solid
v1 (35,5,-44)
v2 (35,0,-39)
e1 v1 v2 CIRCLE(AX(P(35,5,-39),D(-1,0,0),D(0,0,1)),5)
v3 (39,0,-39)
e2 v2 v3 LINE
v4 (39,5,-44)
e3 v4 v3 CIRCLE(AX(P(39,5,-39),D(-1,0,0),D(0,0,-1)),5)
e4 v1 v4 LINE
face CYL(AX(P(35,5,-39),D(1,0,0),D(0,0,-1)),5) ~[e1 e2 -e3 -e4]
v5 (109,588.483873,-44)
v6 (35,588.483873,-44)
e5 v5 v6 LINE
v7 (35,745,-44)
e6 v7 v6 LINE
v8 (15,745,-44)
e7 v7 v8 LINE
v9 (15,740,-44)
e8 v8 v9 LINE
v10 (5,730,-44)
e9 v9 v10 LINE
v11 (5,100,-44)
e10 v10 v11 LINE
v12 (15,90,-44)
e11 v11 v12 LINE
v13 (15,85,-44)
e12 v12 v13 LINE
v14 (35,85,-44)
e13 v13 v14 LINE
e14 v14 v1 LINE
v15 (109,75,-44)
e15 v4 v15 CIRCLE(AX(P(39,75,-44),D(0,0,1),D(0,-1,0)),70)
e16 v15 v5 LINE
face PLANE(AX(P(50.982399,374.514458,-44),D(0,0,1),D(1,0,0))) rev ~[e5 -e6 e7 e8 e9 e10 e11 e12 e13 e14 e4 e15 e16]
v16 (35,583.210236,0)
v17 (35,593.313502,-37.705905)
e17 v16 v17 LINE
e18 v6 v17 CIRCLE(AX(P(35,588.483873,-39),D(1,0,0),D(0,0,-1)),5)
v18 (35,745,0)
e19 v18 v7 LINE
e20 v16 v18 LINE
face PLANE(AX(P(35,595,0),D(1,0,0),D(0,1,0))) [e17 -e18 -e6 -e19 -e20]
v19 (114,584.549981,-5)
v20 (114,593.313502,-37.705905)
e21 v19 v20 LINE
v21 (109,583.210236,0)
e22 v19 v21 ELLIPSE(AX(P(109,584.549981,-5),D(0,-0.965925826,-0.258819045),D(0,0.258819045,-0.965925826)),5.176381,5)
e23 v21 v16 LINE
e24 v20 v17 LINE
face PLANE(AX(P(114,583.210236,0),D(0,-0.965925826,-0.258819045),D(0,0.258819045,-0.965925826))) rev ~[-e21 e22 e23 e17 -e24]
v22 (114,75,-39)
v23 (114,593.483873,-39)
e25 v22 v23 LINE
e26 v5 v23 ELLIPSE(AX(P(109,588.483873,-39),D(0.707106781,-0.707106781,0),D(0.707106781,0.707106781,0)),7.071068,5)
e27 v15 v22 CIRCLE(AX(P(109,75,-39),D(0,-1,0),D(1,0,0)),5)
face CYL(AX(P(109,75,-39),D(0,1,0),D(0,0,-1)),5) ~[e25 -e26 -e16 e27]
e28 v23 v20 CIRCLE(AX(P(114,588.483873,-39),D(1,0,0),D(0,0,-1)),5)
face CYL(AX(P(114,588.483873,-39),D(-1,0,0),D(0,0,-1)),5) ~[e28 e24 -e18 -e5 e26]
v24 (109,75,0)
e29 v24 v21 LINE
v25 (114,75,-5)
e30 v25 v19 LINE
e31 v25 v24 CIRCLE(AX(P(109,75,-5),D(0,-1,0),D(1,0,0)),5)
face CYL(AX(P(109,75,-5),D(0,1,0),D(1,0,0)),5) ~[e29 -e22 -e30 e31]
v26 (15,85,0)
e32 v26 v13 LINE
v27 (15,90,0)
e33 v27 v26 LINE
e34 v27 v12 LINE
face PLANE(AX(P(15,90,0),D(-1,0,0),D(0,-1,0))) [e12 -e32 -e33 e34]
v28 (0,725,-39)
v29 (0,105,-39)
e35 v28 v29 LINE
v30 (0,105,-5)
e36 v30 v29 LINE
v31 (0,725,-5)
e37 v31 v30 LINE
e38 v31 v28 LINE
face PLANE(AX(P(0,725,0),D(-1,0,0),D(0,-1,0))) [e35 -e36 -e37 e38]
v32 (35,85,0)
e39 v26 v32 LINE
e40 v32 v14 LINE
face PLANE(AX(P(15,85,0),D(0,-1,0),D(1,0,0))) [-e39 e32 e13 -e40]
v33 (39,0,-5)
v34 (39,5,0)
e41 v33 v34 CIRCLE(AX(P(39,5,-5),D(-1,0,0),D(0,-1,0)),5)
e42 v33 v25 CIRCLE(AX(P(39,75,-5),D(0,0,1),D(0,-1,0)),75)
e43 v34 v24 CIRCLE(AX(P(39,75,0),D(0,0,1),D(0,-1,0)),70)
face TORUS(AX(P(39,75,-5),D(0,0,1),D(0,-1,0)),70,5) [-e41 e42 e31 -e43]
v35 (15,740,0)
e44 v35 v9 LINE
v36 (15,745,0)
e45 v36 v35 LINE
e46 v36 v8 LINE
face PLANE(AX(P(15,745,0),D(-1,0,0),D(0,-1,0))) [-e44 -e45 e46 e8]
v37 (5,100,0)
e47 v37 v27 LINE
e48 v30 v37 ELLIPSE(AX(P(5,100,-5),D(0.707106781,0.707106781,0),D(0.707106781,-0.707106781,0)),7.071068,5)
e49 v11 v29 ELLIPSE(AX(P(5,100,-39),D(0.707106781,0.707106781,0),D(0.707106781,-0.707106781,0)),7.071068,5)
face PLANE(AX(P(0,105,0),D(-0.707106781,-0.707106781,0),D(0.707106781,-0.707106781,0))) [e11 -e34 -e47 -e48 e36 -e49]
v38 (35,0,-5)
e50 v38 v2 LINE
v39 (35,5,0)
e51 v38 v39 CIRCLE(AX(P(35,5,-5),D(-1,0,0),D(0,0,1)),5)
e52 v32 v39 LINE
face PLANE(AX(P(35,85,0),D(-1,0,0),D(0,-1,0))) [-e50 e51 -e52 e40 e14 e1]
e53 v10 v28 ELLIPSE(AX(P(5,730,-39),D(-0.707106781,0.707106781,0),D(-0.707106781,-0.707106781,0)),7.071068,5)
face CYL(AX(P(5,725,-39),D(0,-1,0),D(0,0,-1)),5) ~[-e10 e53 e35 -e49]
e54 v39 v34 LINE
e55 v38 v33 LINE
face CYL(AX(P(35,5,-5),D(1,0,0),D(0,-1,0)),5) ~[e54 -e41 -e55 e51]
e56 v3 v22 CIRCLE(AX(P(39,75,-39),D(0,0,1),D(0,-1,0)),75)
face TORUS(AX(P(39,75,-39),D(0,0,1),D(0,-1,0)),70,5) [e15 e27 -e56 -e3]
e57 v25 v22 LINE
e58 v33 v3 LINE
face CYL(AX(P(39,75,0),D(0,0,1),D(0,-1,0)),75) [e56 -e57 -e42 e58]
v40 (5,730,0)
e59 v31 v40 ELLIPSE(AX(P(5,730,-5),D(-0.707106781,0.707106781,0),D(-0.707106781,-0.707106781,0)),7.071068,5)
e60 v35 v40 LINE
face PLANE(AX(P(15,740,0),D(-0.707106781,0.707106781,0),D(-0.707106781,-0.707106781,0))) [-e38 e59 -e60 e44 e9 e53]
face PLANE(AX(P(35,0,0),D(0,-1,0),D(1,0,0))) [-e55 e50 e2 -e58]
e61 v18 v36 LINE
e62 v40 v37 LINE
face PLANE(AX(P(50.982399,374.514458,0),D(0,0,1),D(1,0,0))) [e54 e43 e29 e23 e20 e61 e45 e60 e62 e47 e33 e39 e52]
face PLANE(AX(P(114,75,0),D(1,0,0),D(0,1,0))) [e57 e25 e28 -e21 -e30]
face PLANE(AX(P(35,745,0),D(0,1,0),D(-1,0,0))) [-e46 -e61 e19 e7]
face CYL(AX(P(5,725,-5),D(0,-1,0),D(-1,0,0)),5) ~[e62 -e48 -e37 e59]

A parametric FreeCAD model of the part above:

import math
import FreeCAD as App
import Part
import Sketcher
from FreeCAD import Vector
Q = App.Units.Quantity


def edges_at(feature, points):
    """Names of the edges that pass closest to the given points."""
    edges = feature.Shape.Edges
    near = lambda p: min(range(len(edges)), key=lambda i: edges[i].distToShape(Part.Vertex(*p))[0])
    return sorted({f"Edge{near(p) + 1}" for p in points})

doc = App.newDocument("Part")
params = doc.addObject("Spreadsheet::Sheet", "Params")
for row, (alias, value) in enumerate([
    ("sketch1_radius", "75 mm"),
    ("sketch1_width", "4 mm"),
    ("sketch1_width2", "20 mm"),
    ("sketch1_height", "85 mm"),
    ("sketch1_height2", "520 mm"),
    ("pad1_length", "44 mm"),
    ("sketch2_height", "44 mm"),
    ("pocket1_length", "79 mm"),
    ("fillet_radius", "5 mm"),
], start=1):
    params.set(f"A{row}", alias)
    params.set(f"B{row}", "=" + value)
    params.setAlias(f"B{row}", alias)

body = doc.addObject("PartDesign::Body", "Body")

# Sketch on XY plane
sketch1 = body.newObject("Sketcher::SketchObject", "Sketch")
sketch1.AttachmentSupport = (doc.getObject("XY_Plane"), [""])
sketch1.MapMode = "FlatFace"
sketch1.addGeometry([
    Part.LineSegment(Vector(35, 85, 0), Vector(35, 0, 0)),  # 0
    Part.LineSegment(Vector(35, 0, 0), Vector(39, 0, 0)),  # 1
    Part.ArcOfCircle(Part.Circle(Vector(39, 75, 0), Vector(0, 0, 1), 75), math.radians(-90), math.radians(0)),  # 2
    Part.LineSegment(Vector(114, 75, 0), Vector(114, 595, 0)),  # 3
    Part.LineSegment(Vector(114, 595, 0), Vector(35, 595, 0)),  # 4
    Part.LineSegment(Vector(35, 595, 0), Vector(35, 745, 0)),  # 5
    Part.LineSegment(Vector(35, 745, 0), Vector(15, 745, 0)),  # 6
    Part.LineSegment(Vector(15, 745, 0), Vector(15, 740, 0)),  # 7
    Part.LineSegment(Vector(15, 740, 0), Vector(0, 725, 0)),  # 8
    Part.LineSegment(Vector(0, 725, 0), Vector(0, 105, 0)),  # 9
    Part.LineSegment(Vector(0, 105, 0), Vector(15, 90, 0)),  # 10
    Part.LineSegment(Vector(15, 90, 0), Vector(15, 85, 0)),  # 11
    Part.LineSegment(Vector(15, 85, 0), Vector(35, 85, 0)),  # 12
], False)
sketch1.addConstraint([
    Sketcher.Constraint("Coincident", 0, 2, 1, 1),
    Sketcher.Constraint("Tangent", 1, 2, 2, 1),
    Sketcher.Constraint("Tangent", 2, 2, 3, 1),
    Sketcher.Constraint("Coincident", 3, 2, 4, 1),
    Sketcher.Constraint("Coincident", 4, 2, 5, 1),
    Sketcher.Constraint("Coincident", 5, 2, 6, 1),
    Sketcher.Constraint("Coincident", 6, 2, 7, 1),
    Sketcher.Constraint("Coincident", 7, 2, 8, 1),
    Sketcher.Constraint("Coincident", 8, 2, 9, 1),
    Sketcher.Constraint("Coincident", 9, 2, 10, 1),
    Sketcher.Constraint("Coincident", 10, 2, 11, 1),
    Sketcher.Constraint("Coincident", 11, 2, 12, 1),
    Sketcher.Constraint("Coincident", 12, 2, 0, 1),
    Sketcher.Constraint("Vertical", 0),
    Sketcher.Constraint("Horizontal", 1),
    Sketcher.Constraint("Vertical", 3),
    Sketcher.Constraint("Horizontal", 4),
    Sketcher.Constraint("Vertical", 5),
    Sketcher.Constraint("Horizontal", 6),
    Sketcher.Constraint("Vertical", 7),
    Sketcher.Constraint("Vertical", 9),
    Sketcher.Constraint("Vertical", 11),
    Sketcher.Constraint("Horizontal", 12),
    Sketcher.Constraint("PointOnObject", 0, 2, -1),
    Sketcher.Constraint("PointOnObject", 8, 2, -2),
    Sketcher.Constraint("Perpendicular", 8, 10),
    Sketcher.Constraint("Vertical", 0, 2, 4, 2),
    Sketcher.Constraint("Vertical", 7, 2, 10, 2),
    Sketcher.Constraint("Equal", 7, 11),
    Sketcher.Constraint("Equal", 8, 10),
    Sketcher.Constraint("Radius", 2, Q("75 mm")),
    Sketcher.Constraint("DistanceX", 1, 1, 1, 2, Q("4 mm")),
    Sketcher.Constraint("DistanceX", 6, 2, 6, 1, Q("20 mm")),
    Sketcher.Constraint("DistanceY", 0, 2, 0, 1, Q("85 mm")),
    Sketcher.Constraint("DistanceY", 3, 1, 3, 2, Q("520 mm")),
    Sketcher.Constraint("DistanceY", 5, 1, 5, 2, Q("150 mm")),
    Sketcher.Constraint("DistanceY", 7, 2, 7, 1, Q("5 mm")),
    Sketcher.Constraint("DistanceY", 9, 2, 9, 1, Q("620 mm")),
])
sketch1.setExpression("Constraints[30]", "Params.sketch1_radius")
sketch1.setExpression("Constraints[31]", "Params.sketch1_width")
sketch1.setExpression("Constraints[32]", "Params.sketch1_width2")
sketch1.setExpression("Constraints[33]", "Params.sketch1_height")
sketch1.setExpression("Constraints[34]", "Params.sketch1_height2")
pad1 = body.newObject("PartDesign::Pad", "Pad")
pad1.Profile = sketch1
pad1.setExpression("Length", "Params.pad1_length")
pad1.Reversed = True

# Sketch on YZ plane
sketch2 = body.newObject("Sketcher::SketchObject", "Sketch001")
sketch2.AttachmentSupport = (doc.getObject("YZ_Plane"), [""])
sketch2.MapMode = "FlatFace"
sketch2.AttachmentOffset = App.Placement(Vector(0, 0, 114), App.Rotation())
sketch2.addGeometry([
    Part.LineSegment(Vector(583, 0, 0), Vector(595, -44, 0)),
    Part.LineSegment(Vector(595, -44, 0), Vector(595, 0, 0)),
    Part.LineSegment(Vector(595, 0, 0), Vector(583, 0, 0)),
], False)
sketch2.addConstraint([
    Sketcher.Constraint("Coincident", 0, 2, 1, 1),
    Sketcher.Constraint("Coincident", 1, 2, 2, 1),
    Sketcher.Constraint("Coincident", 2, 2, 0, 1),
    Sketcher.Constraint("Vertical", 1),
    Sketcher.Constraint("Horizontal", 2),
    Sketcher.Constraint("PointOnObject", 1, 2, -1),
    Sketcher.Constraint("DistanceY", 1, 1, 1, 2, Q("44 mm")),
    Sketcher.Constraint("Angle", 0, Q("-75 deg")),
    Sketcher.Constraint("DistanceX", -1, 1, 0, 2, Q("595 mm")),
])
sketch2.setExpression("Constraints[6]", "Params.sketch2_height")
pocket1 = body.newObject("PartDesign::Pocket", "Pocket")
pocket1.Profile = sketch2
pocket1.setExpression("Length", "Params.pocket1_length")
doc.recompute()

fillet = body.newObject("PartDesign::Fillet", "Fillet")
fillet.Base = (pocket1, edges_at(pocket1, [
    (114, 335, -44),
    (114, 329.105, 0),
    (74.5, 595, -44),
    (0, 415, -44),
    (0, 415, 0),
]))
fillet.setExpression("Radius", "Params.fillet_radius")

doc.recompute()
